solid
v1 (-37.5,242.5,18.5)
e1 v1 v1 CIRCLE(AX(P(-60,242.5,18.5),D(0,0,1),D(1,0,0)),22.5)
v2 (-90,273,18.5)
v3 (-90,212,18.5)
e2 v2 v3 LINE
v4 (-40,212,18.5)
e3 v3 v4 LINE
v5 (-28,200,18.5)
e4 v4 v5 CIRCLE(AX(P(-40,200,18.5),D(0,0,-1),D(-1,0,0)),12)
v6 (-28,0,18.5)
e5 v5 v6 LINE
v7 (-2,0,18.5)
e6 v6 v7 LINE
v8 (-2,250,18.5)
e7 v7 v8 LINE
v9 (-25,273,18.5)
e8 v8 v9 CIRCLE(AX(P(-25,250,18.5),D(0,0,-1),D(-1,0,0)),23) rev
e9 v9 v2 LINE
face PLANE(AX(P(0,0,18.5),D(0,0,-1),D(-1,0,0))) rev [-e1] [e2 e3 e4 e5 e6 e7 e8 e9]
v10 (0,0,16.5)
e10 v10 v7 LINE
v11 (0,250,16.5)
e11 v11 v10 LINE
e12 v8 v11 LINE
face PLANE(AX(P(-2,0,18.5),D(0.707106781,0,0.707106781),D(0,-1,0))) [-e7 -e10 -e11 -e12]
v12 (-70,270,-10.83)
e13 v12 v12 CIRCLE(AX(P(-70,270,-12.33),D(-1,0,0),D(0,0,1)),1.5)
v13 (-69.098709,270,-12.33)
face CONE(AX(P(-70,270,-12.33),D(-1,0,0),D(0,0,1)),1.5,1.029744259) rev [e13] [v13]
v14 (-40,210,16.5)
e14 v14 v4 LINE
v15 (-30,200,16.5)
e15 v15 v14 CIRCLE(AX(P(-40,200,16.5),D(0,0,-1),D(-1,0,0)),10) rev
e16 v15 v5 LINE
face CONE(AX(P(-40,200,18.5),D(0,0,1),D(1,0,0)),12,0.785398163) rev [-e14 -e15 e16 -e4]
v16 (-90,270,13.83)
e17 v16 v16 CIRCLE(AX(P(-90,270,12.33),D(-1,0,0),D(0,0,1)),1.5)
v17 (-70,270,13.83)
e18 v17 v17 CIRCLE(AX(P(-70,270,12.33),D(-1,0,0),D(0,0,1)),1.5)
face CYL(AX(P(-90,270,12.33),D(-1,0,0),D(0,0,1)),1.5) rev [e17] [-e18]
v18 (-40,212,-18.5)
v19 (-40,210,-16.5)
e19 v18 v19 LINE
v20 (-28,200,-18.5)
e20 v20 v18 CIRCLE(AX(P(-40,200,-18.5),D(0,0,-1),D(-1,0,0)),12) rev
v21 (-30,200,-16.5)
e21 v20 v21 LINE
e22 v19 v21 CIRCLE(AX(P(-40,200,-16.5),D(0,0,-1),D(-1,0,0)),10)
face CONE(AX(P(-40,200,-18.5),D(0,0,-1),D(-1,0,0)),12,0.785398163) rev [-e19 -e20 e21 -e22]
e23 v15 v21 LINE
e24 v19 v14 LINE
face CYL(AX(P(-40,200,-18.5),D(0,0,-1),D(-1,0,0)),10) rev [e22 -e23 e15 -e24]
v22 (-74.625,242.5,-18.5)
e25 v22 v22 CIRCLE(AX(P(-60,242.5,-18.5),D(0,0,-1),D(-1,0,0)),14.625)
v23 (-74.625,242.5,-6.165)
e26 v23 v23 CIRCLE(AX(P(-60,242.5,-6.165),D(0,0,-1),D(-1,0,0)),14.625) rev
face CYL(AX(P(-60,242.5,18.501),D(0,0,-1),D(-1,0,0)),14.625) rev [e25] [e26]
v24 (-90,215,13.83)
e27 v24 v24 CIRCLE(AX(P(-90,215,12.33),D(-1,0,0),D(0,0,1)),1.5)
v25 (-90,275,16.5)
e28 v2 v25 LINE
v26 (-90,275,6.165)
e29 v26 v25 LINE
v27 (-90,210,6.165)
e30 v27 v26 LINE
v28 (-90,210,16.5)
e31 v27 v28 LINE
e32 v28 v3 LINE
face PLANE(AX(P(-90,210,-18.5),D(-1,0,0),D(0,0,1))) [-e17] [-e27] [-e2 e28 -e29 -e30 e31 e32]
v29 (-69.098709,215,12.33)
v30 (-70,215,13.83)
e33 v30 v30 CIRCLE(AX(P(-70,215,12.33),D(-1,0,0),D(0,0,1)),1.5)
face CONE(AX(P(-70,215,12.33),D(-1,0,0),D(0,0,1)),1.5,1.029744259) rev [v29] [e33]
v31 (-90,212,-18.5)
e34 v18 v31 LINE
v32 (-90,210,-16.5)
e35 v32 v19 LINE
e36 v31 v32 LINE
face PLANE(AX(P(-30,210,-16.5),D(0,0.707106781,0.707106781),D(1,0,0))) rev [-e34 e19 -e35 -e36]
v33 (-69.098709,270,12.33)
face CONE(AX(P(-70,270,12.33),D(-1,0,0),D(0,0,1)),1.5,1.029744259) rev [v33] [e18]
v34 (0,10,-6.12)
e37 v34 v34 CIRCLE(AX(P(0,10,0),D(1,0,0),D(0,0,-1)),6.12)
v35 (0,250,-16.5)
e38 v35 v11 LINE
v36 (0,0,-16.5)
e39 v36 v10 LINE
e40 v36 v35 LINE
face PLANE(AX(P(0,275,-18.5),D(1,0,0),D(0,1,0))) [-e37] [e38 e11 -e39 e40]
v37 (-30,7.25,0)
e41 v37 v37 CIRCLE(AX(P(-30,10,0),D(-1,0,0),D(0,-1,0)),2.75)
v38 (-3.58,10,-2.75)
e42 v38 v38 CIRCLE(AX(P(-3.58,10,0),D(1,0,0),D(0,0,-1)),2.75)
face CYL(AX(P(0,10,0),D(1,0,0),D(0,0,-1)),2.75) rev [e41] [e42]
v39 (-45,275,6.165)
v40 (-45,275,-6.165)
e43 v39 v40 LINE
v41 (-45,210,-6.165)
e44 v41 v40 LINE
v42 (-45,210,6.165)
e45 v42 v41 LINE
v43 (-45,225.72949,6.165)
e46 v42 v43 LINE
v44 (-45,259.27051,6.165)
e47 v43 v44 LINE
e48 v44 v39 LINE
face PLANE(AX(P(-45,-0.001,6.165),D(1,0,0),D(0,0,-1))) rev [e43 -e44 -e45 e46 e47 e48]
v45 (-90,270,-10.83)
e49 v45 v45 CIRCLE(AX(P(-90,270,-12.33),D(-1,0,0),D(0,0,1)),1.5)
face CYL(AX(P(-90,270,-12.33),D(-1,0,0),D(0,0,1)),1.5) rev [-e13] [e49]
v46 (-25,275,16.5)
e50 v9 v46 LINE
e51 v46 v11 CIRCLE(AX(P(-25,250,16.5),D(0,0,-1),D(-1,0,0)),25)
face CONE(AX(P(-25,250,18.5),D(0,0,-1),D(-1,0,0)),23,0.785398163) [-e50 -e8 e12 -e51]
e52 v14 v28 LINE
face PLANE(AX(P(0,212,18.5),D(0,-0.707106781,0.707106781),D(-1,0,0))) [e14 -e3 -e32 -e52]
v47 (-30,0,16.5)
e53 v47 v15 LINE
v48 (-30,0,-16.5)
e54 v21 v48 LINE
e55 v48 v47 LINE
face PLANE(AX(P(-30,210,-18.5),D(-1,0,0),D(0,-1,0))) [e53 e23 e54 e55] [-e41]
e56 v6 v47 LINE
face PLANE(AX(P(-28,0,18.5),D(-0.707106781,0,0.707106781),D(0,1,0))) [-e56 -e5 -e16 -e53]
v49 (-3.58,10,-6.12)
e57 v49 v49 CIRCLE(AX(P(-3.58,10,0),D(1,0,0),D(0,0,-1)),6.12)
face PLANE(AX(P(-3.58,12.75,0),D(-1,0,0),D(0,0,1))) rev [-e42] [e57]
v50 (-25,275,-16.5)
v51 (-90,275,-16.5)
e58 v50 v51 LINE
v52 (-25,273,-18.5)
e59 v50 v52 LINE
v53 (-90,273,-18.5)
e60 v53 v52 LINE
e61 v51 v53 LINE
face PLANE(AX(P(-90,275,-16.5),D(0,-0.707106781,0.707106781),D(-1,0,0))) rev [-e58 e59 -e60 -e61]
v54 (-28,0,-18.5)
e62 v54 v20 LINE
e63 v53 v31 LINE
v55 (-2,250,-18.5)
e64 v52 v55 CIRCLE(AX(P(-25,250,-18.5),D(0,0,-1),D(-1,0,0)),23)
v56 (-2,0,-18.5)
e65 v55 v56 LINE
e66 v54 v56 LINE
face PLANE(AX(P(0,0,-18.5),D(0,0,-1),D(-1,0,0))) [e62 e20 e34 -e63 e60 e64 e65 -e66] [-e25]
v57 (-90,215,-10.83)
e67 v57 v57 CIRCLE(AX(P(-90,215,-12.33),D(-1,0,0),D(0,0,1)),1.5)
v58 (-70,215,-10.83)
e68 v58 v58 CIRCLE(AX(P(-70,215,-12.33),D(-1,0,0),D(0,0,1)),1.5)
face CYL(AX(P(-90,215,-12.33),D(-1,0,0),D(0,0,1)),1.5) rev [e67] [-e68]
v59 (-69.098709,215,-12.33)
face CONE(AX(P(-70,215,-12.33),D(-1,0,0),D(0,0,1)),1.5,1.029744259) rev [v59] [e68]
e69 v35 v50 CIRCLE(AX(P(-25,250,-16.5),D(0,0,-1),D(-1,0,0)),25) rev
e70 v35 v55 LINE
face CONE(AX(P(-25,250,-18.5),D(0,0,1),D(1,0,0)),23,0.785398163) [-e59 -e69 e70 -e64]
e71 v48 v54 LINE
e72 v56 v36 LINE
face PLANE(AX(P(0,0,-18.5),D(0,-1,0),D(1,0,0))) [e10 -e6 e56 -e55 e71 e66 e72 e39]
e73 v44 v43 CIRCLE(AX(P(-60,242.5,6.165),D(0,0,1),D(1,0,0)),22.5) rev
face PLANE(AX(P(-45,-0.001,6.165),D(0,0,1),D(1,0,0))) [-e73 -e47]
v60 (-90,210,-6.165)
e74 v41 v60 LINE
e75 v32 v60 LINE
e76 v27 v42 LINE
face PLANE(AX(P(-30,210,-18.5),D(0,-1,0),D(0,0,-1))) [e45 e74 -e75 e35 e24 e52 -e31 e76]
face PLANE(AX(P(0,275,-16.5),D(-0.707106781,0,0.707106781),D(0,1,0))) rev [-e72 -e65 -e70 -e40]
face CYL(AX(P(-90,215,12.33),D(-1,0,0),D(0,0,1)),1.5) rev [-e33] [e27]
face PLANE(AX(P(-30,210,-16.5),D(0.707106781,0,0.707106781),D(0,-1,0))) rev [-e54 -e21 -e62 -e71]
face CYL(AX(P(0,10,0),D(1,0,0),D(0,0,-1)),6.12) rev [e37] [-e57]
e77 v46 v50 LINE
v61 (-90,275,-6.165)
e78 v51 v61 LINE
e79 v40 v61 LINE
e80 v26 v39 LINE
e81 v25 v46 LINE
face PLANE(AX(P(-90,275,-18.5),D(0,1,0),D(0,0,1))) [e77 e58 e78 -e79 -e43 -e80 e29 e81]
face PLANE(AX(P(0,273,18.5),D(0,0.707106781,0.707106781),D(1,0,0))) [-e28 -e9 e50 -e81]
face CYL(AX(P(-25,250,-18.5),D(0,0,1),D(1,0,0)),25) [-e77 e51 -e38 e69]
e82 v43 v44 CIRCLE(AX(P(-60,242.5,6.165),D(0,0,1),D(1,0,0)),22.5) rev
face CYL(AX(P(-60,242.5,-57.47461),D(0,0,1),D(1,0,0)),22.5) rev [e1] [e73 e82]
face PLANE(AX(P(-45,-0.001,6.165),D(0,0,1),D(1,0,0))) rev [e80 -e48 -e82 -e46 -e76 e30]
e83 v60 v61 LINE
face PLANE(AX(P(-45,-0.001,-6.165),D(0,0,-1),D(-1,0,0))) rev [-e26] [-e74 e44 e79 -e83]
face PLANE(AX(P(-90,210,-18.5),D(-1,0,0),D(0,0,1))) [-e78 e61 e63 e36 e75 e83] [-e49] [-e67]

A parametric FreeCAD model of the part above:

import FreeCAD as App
import Part
import Sketcher

V = App.Vector


def edges_at(feature, points):
    """Names of the edges that pass closest to the given points."""
    edges = feature.Shape.Edges
    near = lambda p: min(range(len(edges)), key=lambda i: edges[i].distToShape(Part.Vertex(*p))[0])
    return sorted({f"Edge{near(p) + 1}" for p in points})


def add_polygon(sketch, points):
    """Adds a closed chain of lines whose ends are joined by coincident constraints."""
    first, n = sketch.GeometryCount, len(points)
    for a, b in zip(points, points[1:] + points[:1]):
        sketch.addGeometry(Part.LineSegment(App.Vector(*a, 0), App.Vector(*b, 0)), False)
    for i in range(n):
        sketch.addConstraint(Sketcher.Constraint("Coincident", first + i, 2, first + (i + 1) % n, 1))

doc = App.newDocument("Part")
body = doc.addObject("PartDesign::Body", "Body")

# Sketch on XY plane
sketch1 = body.newObject("Sketcher::SketchObject", "Sketch")
sketch1.AttachmentSupport = (doc.getObject("XY_Plane"), [""])
sketch1.MapMode = "FlatFace"
add_polygon(sketch1, [(-30, 0), (0, 0), (0, 275), (-90, 275), (-90, 210), (-30, 210)])  # lines 0-5
sketch1.addConstraint([
    Sketcher.Constraint("Horizontal", 0),
    Sketcher.Constraint("Vertical", 1),
    Sketcher.Constraint("Horizontal", 2),
    Sketcher.Constraint("Vertical", 3),
    Sketcher.Constraint("Horizontal", 4),
    Sketcher.Constraint("Vertical", 5),
    Sketcher.Constraint("Coincident", 0, 2, -1, 1),
    Sketcher.Constraint("DistanceX", 0, 1, 0, 2, 30.0),
    Sketcher.Constraint("DistanceX", 2, 2, 2, 1, 90.0),
    Sketcher.Constraint("DistanceY", 1, 1, 1, 2, 275.0),
    Sketcher.Constraint("DistanceY", 3, 2, 3, 1, 65.0),
])
pad1 = body.newObject("PartDesign::Pad", "Pad")
pad1.Profile = sketch1
pad1.Length = 37
pad1.Midplane = True

# Sketch on XZ plane
sketch2 = body.newObject("Sketcher::SketchObject", "Sketch001")
sketch2.AttachmentSupport = (doc.getObject("XZ_Plane"), [""])
sketch2.MapMode = "FlatFace"
sketch2.AttachmentOffset = App.Placement(V(0, 0, -275), App.Rotation())
add_polygon(sketch2, [(-90, -6), (-90, 6), (-45, 6), (-45, -6)])  # lines 0-3
sketch2.addConstraint([
    Sketcher.Constraint("Vertical", 0),
    Sketcher.Constraint("Horizontal", 1),
    Sketcher.Constraint("Vertical", 2),
    Sketcher.Constraint("Horizontal", 3),
    Sketcher.Constraint("DistanceX", 1, 1, 1, 2, 45.0),
    Sketcher.Constraint("DistanceX", 0, 2, -1, 1, 90.0),
    Sketcher.Constraint("DistanceY", 0, 1, 0, 2, 12.33),
    Sketcher.Constraint("DistanceY", -1, 1, 0, 2, 6.165),
])
pocket1 = body.newObject("PartDesign::Pocket", "Pocket")
pocket1.Profile = sketch2
pocket1.Type = "UpToFirst"
pocket1.Reversed = True
doc.recompute()

fillet = body.newObject("PartDesign::Fillet", "Fillet")
fillet.Base = (pocket1, edges_at(pocket1, [(0, 275, 0)]))
fillet.Radius = 25
doc.recompute()

fillet2 = body.newObject("PartDesign::Fillet", "Fillet001")
fillet2.Base = (fillet, edges_at(fillet, [(-30, 210, 0)]))
fillet2.Radius = 10

# Sketch on XY plane
sketch3 = body.newObject("Sketcher::SketchObject", "Sketch002")
sketch3.AttachmentSupport = (doc.getObject("XY_Plane"), [""])
sketch3.MapMode = "FlatFace"
sketch3.AttachmentOffset = App.Placement(V(0, 0, 18.5), App.Rotation())
sketch3.addGeometry(Part.Circle(V(-60, 242, 0), V(0, 0, 1), 22), False)
sketch3.addConstraint([
    Sketcher.Constraint("Diameter", 0, 45.0),
    Sketcher.Constraint("DistanceX", 0, 3, -1, 1, 60.0),
    Sketcher.Constraint("DistanceY", -1, 1, 0, 3, 242.5),
])
pocket2 = body.newObject("PartDesign::Pocket", "Pocket001")
pocket2.Profile = sketch3
pocket2.Length = 12.335

# Sketch on XY plane
sketch4 = body.newObject("Sketcher::SketchObject", "Sketch003")
sketch4.AttachmentSupport = (doc.getObject("XY_Plane"), [""])
sketch4.MapMode = "FlatFace"
sketch4.AttachmentOffset = App.Placement(V(0, 0, -18.5), App.Rotation())
sketch4.addGeometry(Part.Circle(V(-60, 242, 0), V(0, 0, 1), 15), False)
sketch4.addConstraint([
    Sketcher.Constraint("Diameter", 0, 29.25),
    Sketcher.Constraint("DistanceX", 0, 3, -1, 1, 60.0),
    Sketcher.Constraint("DistanceY", -1, 1, 0, 3, 242.5),
])
pocket3 = body.newObject("PartDesign::Pocket", "Pocket002")
pocket3.Profile = sketch4
pocket3.Type = "UpToFirst"
pocket3.Reversed = True
doc.recompute()

chamfer = body.newObject("PartDesign::Chamfer", "Chamfer")
chamfer.Base = (pocket3, edges_at(pocket3, [
    (-65, 210, -18.5),
    (-57.5, 275, 18.5),
    (-7.322, 267.678, 18.5),
    (-57.5, 275, -18.5),
    (-7.322, 267.678, -18.5),
    (-30, 100, 18.5),
    (-30, 100, -18.5),
    (-32.929, 207.071, 18.5),
    (-32.929, 207.071, -18.5),
    (0, 125, -18.5),
    (-65, 210, 18.5),
    (0, 125, 18.5),
]))
chamfer.Size = 2

# Sketch on YZ plane
sketch5 = body.newObject("Sketcher::SketchObject", "Sketch004")
sketch5.AttachmentSupport = (doc.getObject("YZ_Plane"), [""])
sketch5.MapMode = "FlatFace"
sketch5.addGeometry(Part.Circle(V(10, 0, 0), V(0, 0, 1), 2.8), False)
sketch5.addConstraint([
    Sketcher.Constraint("PointOnObject", 0, 3, -1),
    Sketcher.Constraint("Diameter", 0, 5.5),
    Sketcher.Constraint("DistanceX", -1, 1, 0, 3, 10.0),
])
doc.recompute()
hole = body.newObject("PartDesign::Hole", "Hole")
hole.Profile = sketch5
hole.ThreadType = "None"
hole.Diameter = 5.5
hole.DepthType = "ThroughAll"
hole.HoleCutType = "Counterbore"
hole.HoleCutDiameter = 12.24
hole.HoleCutDepth = 3.58

# Sketch on YZ plane
sketch6 = body.newObject("Sketcher::SketchObject", "Sketch005")
sketch6.AttachmentSupport = (doc.getObject("YZ_Plane"), [""])
sketch6.MapMode = "FlatFace"
sketch6.AttachmentOffset = App.Placement(V(0, 0, -90), App.Rotation())
sketch6.addGeometry([
    Part.Circle(V(270, 12.3, 0), V(0, 0, 1), 1.5),
    Part.Circle(V(215, -12.3, 0), V(0, 0, 1), 1.5),
    Part.Circle(V(270, -12.3, 0), V(0, 0, 1), 1.5),
    Part.Circle(V(215, 12.3, 0), V(0, 0, 1), 1.5),
], False)
sketch6.addConstraint([
    Sketcher.Constraint("Equal", 0, 1),
    Sketcher.Constraint("Equal", 1, 2),
    Sketcher.Constraint("Equal", 2, 3),
    Sketcher.Constraint("Symmetric", 0, 3, 2, 3, -1),
    Sketcher.Constraint("Symmetric", 1, 3, 3, 3, -1),
    Sketcher.Constraint("Horizontal", 1, 3, 2, 3),
    Sketcher.Constraint("Diameter", 0, 3.0),
    Sketcher.Constraint("DistanceX", -1, 1, 0, 3, 270.0),
    Sketcher.Constraint("DistanceX", -1, 1, 1, 3, 215.0),
    Sketcher.Constraint("DistanceY", -1, 1, 0, 3, 12.33),
])
doc.recompute()
hole2 = body.newObject("PartDesign::Hole", "Hole001")
hole2.Profile = sketch6
hole2.ThreadType = "None"
hole2.Diameter = 3
hole2.DepthType = "Dimension"
hole2.Depth = 20
hole2.DrillPoint = "Angled"
hole2.DrillPointAngle = 118
hole2.Reversed = True

doc.recompute()
